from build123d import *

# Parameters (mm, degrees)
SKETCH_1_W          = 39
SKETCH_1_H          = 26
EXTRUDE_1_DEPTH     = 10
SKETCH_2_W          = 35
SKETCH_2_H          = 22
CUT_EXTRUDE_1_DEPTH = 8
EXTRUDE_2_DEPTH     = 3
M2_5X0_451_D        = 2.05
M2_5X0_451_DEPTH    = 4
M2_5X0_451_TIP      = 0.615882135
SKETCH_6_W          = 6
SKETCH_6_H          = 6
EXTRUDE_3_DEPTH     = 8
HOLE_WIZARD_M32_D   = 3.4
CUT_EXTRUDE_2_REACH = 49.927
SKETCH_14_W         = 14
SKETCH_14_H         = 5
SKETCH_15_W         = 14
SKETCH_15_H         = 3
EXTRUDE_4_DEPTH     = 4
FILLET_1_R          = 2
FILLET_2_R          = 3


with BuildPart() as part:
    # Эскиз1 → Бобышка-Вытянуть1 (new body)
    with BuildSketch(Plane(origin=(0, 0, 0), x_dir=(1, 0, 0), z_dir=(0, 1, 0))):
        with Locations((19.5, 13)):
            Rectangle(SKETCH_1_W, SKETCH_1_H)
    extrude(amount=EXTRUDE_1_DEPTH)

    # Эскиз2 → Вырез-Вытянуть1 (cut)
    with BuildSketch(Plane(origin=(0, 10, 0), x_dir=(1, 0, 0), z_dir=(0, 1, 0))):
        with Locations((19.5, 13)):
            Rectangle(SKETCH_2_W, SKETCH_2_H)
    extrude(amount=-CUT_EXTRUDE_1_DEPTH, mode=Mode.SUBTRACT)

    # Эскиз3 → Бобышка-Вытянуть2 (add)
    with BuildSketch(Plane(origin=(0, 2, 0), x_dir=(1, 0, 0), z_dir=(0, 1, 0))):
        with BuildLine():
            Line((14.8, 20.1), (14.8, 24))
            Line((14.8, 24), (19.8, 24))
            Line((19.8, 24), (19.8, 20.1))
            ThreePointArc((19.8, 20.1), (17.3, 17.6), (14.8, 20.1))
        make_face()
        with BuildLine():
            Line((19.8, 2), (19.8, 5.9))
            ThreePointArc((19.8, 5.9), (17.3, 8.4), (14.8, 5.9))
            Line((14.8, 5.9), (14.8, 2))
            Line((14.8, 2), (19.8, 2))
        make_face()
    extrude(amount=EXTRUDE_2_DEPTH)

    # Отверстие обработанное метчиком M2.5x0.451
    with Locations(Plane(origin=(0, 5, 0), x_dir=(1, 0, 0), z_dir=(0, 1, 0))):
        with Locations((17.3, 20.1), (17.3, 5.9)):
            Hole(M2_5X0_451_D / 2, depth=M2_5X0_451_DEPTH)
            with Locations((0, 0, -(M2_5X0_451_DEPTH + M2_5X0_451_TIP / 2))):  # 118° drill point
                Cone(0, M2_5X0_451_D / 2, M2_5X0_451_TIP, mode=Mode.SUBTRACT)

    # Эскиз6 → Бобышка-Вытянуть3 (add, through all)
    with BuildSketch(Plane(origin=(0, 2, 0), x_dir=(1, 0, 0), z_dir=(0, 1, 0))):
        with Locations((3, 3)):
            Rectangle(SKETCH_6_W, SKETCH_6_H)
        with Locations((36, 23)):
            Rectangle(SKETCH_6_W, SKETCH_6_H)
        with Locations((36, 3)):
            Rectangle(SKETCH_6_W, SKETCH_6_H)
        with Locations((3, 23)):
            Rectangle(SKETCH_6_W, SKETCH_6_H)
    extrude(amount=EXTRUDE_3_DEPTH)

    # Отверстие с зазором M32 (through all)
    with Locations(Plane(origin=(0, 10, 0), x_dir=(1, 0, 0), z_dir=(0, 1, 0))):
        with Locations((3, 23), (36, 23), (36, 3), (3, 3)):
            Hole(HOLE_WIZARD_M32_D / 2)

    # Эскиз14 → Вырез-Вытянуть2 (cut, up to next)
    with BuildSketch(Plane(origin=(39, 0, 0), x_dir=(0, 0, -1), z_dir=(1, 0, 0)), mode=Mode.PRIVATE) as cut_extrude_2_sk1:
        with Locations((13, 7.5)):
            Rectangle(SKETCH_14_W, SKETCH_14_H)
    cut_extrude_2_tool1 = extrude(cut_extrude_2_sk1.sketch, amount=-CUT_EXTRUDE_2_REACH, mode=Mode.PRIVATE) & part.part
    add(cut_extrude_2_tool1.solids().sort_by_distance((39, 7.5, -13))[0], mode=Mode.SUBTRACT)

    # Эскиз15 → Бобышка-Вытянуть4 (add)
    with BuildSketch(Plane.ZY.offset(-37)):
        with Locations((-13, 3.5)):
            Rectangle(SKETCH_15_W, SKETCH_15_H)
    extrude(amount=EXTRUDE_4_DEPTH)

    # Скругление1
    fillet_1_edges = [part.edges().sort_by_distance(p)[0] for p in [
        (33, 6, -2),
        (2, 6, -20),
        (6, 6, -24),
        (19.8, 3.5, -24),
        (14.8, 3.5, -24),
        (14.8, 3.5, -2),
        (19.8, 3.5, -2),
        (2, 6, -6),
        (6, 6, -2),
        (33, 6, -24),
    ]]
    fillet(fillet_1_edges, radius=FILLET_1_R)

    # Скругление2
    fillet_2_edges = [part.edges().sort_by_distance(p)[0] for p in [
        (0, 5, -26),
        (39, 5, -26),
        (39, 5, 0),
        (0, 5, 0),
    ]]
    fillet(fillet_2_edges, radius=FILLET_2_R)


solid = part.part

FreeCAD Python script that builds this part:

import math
import FreeCAD as App
import Part
import Sketcher
from FreeCAD import Vector
Q = App.Units.Quantity


def edges_at(feature, points):
    """Names of the edges that pass closest to the given points."""
    edges = feature.Shape.Edges
    near = lambda p: min(range(len(edges)), key=lambda i: edges[i].distToShape(Part.Vertex(*p))[0])
    return sorted({f"Edge{near(p) + 1}" for p in points})


def add_polygon(sketch, points):
    """Adds a closed chain of lines whose ends are joined by coincident constraints."""
    first, n = sketch.GeometryCount, len(points)
    for a, b in zip(points, points[1:] + points[:1]):
        sketch.addGeometry(Part.LineSegment(App.Vector(*a, 0), App.Vector(*b, 0)), False)
    for i in range(n):
        sketch.addConstraint(Sketcher.Constraint("Coincident", first + i, 2, first + (i + 1) % n, 1))

doc = App.newDocument("Part")
params = doc.addObject("Spreadsheet::Sheet", "Params")
for row, (alias, value) in enumerate([
    ("sketch1_width", "39 mm"),
    ("sketch1_height", "26 mm"),
    ("pad1_length", "10 mm"),
    ("sketch2_width", "35 mm"),
    ("sketch2_height", "22 mm"),
    ("pocket1_length", "8 mm"),
    ("sketch3_radius", "2.5 mm"),
    ("sketch3_height", "3.9 mm"),
    ("pad2_length", "3 mm"),
    ("sketch4_diameter", "2.05 mm"),
    ("hole_diameter", "2.05 mm"),
    ("hole_depth", "4 mm"),
    ("sketch5_width", "6 mm"),
    ("pad3_length", "8 mm"),
    ("sketch6_diameter", "3.4 mm"),
    ("hole2_diameter", "3.4 mm"),
    ("sketch7_width", "5 mm"),
    ("sketch7_height", "14 mm"),
    ("sketch8_width", "3 mm"),
    ("sketch8_height", "14 mm"),
    ("pad4_length", "4 mm"),
    ("fillet_radius", "2 mm"),
    ("fillet2_radius", "3 mm"),
], start=1):
    params.set(f"A{row}", alias)
    params.set(f"B{row}", "=" + value)
    params.setAlias(f"B{row}", alias)

body = doc.addObject("PartDesign::Body", "Body")

# Sketch on XZ plane
sketch1 = body.newObject("Sketcher::SketchObject", "Sketch")
sketch1.AttachmentSupport = (doc.getObject("XZ_Plane"), [""])
sketch1.MapMode = "FlatFace"
add_polygon(sketch1, [(0, -26), (0, 0), (39, 0), (39, -26)])  # lines 0-3
sketch1.addConstraint(Sketcher.Constraint("Vertical", 0))
sketch1.addConstraint(Sketcher.Constraint("Horizontal", 1))
sketch1.addConstraint(Sketcher.Constraint("Vertical", 2))
sketch1.addConstraint(Sketcher.Constraint("Horizontal", 3))
sketch1.addConstraint(Sketcher.Constraint("Coincident", 0, 2, -1, 1))
sketch1.addConstraint(Sketcher.Constraint("DistanceX", 1, 1, 1, 2, Q("39 mm")))
sketch1.addConstraint(Sketcher.Constraint("DistanceY", 0, 1, 0, 2, Q("26 mm")))
sketch1.setExpression("Constraints[9]", "Params.sketch1_width")
sketch1.setExpression("Constraints[10]", "Params.sketch1_height")
pad1 = body.newObject("PartDesign::Pad", "Pad")
pad1.Profile = sketch1
pad1.setExpression("Length", "Params.pad1_length")
pad1.Reversed = True

# Sketch on XZ plane
sketch2 = body.newObject("Sketcher::SketchObject", "Sketch001")
sketch2.AttachmentSupport = (doc.getObject("XZ_Plane"), [""])
sketch2.MapMode = "FlatFace"
sketch2.AttachmentOffset = App.Placement(Vector(0, 0, -10), App.Rotation())
add_polygon(sketch2, [(2, -24), (2, -2), (37, -2), (37, -24)])  # lines 0-3
sketch2.addConstraint(Sketcher.Constraint("Vertical", 0))
sketch2.addConstraint(Sketcher.Constraint("Horizontal", 1))
sketch2.addConstraint(Sketcher.Constraint("Vertical", 2))
sketch2.addConstraint(Sketcher.Constraint("Horizontal", 3))
sketch2.addConstraint(Sketcher.Constraint("DistanceX", 1, 1, 1, 2, Q("35 mm")))
sketch2.addConstraint(Sketcher.Constraint("DistanceY", 0, 1, 0, 2, Q("22 mm")))
sketch2.addConstraint(Sketcher.Constraint("DistanceX", -1, 1, 0, 2, Q("2 mm")))
sketch2.addConstraint(Sketcher.Constraint("DistanceY", 0, 2, -1, 1, Q("2 mm")))
sketch2.setExpression("Constraints[8]", "Params.sketch2_width")
sketch2.setExpression("Constraints[9]", "Params.sketch2_height")
pocket1 = body.newObject("PartDesign::Pocket", "Pocket")
pocket1.Profile = sketch2
pocket1.setExpression("Length", "Params.pocket1_length")
pocket1.Reversed = True

# Sketch on XZ plane
sketch3 = body.newObject("Sketcher::SketchObject", "Sketch002")
sketch3.AttachmentSupport = (doc.getObject("XZ_Plane"), [""])
sketch3.MapMode = "FlatFace"
sketch3.AttachmentOffset = App.Placement(Vector(0, 0, -2), App.Rotation())
sketch3.addGeometry(Part.LineSegment(Vector(14.8, -24, 0), Vector(14.8, -20.1, 0)), False)
sketch3.addGeometry(Part.ArcOfCircle(Part.Circle(Vector(17.3, -20.1, 0), Vector(0, 0, 1), 2.5), math.radians(0), math.radians(180)), False)
sketch3.addGeometry(Part.LineSegment(Vector(19.8, -20.1, 0), Vector(19.8, -24, 0)), False)
sketch3.addGeometry(Part.LineSegment(Vector(19.8, -24, 0), Vector(14.8, -24, 0)), False)
sketch3.addGeometry(Part.LineSegment(Vector(19.8, -2, 0), Vector(19.8, -5.9, 0)), False)
sketch3.addGeometry(Part.ArcOfCircle(Part.Circle(Vector(17.3, -5.9, 0), Vector(0, 0, 1), 2.5), math.radians(180), math.radians(360)), False)
sketch3.addGeometry(Part.LineSegment(Vector(14.8, -5.9, 0), Vector(14.8, -2, 0)), False)
sketch3.addGeometry(Part.LineSegment(Vector(14.8, -2, 0), Vector(19.8, -2, 0)), False)
sketch3.addConstraint(Sketcher.Constraint("Tangent", 0, 2, 1, 2))
sketch3.addConstraint(Sketcher.Constraint("Tangent", 1, 1, 2, 1))
sketch3.addConstraint(Sketcher.Constraint("Coincident", 2, 2, 3, 1))
sketch3.addConstraint(Sketcher.Constraint("Coincident", 3, 2, 0, 1))
sketch3.addConstraint(Sketcher.Constraint("Tangent", 4, 2, 5, 2))
sketch3.addConstraint(Sketcher.Constraint("Tangent", 5, 1, 6, 1))
sketch3.addConstraint(Sketcher.Constraint("Coincident", 6, 2, 7, 1))
sketch3.addConstraint(Sketcher.Constraint("Coincident", 7, 2, 4, 1))
sketch3.addConstraint(Sketcher.Constraint("Vertical", 0))
sketch3.addConstraint(Sketcher.Constraint("Vertical", 2))
sketch3.addConstraint(Sketcher.Constraint("Horizontal", 3))
sketch3.addConstraint(Sketcher.Constraint("Vertical", 4))
sketch3.addConstraint(Sketcher.Constraint("Vertical", 6))
sketch3.addConstraint(Sketcher.Constraint("Horizontal", 7))
sketch3.addConstraint(Sketcher.Constraint("Equal", 1, 5))
sketch3.addConstraint(Sketcher.Constraint("Vertical", 1, 3, 5, 3))
sketch3.addConstraint(Sketcher.Constraint("Equal", 2, 4))
sketch3.addConstraint(Sketcher.Constraint("Radius", 1, Q("2.5 mm")))
sketch3.addConstraint(Sketcher.Constraint("DistanceY", 0, 1, 0, 2, Q("3.9 mm")))
sketch3.addConstraint(Sketcher.Constraint("DistanceY", 2, 2, -1, 1, Q("24 mm")))
sketch3.addConstraint(Sketcher.Constraint("DistanceY", 6, 2, -1, 1, Q("2 mm")))
sketch3.addConstraint(Sketcher.Constraint("DistanceX", -1, 1, 1, 3, Q("17.3 mm")))
sketch3.setExpression("Constraints[17]", "Params.sketch3_radius")
sketch3.setExpression("Constraints[18]", "Params.sketch3_height")
pad2 = body.newObject("PartDesign::Pad", "Pad001")
pad2.Profile = sketch3
pad2.setExpression("Length", "Params.pad2_length")
pad2.Reversed = True

# Sketch on XZ plane
sketch4 = body.newObject("Sketcher::SketchObject", "Sketch003")
sketch4.AttachmentSupport = (doc.getObject("XZ_Plane"), [""])
sketch4.MapMode = "FlatFace"
sketch4.AttachmentOffset = App.Placement(Vector(0, 0, -5), App.Rotation())
sketch4.addGeometry(Part.Circle(Vector(17.3, -20.1, 0), Vector(0, 0, 1), 1), False)
sketch4.addGeometry(Part.Circle(Vector(17.3, -5.9, 0), Vector(0, 0, 1), 1), False)
sketch4.addConstraint(Sketcher.Constraint("Equal", 0, 1))
sketch4.addConstraint(Sketcher.Constraint("Vertical", 0, 3, 1, 3))
sketch4.addConstraint(Sketcher.Constraint("Diameter", 0, Q("2.05 mm")))
sketch4.addConstraint(Sketcher.Constraint("DistanceX", -1, 1, 0, 3, Q("17.3 mm")))
sketch4.addConstraint(Sketcher.Constraint("DistanceY", 0, 3, -1, 1, Q("20.1 mm")))
sketch4.addConstraint(Sketcher.Constraint("DistanceY", 1, 3, -1, 1, Q("5.9 mm")))
sketch4.setExpression("Constraints[2]", "Params.sketch4_diameter")
doc.recompute()
hole = body.newObject("PartDesign::Hole", "Hole")
hole.Profile = sketch4
hole.ThreadType = "None"
hole.setExpression("Diameter", "Params.hole_diameter")
hole.DepthType = "Dimension"
hole.setExpression("Depth", "Params.hole_depth")
hole.DrillPoint = "Angled"
hole.DrillPointAngle = 118
hole.Reversed = True

# Sketch on XZ plane
sketch5 = body.newObject("Sketcher::SketchObject", "Sketch004")
sketch5.AttachmentSupport = (doc.getObject("XZ_Plane"), [""])
sketch5.MapMode = "FlatFace"
sketch5.AttachmentOffset = App.Placement(Vector(0, 0, -2), App.Rotation())
add_polygon(sketch5, [(0, -6), (0, 0), (6, 0), (6, -6)])  # lines 0-3
add_polygon(sketch5, [(33, -26), (33, -20), (39, -20), (39, -26)])  # lines 4-7
add_polygon(sketch5, [(33, -6), (33, 0), (39, 0), (39, -6)])  # lines 8-11
add_polygon(sketch5, [(0, -26), (0, -20), (6, -20), (6, -26)])  # lines 12-15
sketch5.addConstraint(Sketcher.Constraint("Vertical", 0))
sketch5.addConstraint(Sketcher.Constraint("Horizontal", 1))
sketch5.addConstraint(Sketcher.Constraint("Vertical", 2))
sketch5.addConstraint(Sketcher.Constraint("Horizontal", 3))
sketch5.addConstraint(Sketcher.Constraint("Vertical", 4))
sketch5.addConstraint(Sketcher.Constraint("Horizontal", 5))
sketch5.addConstraint(Sketcher.Constraint("Vertical", 6))
sketch5.addConstraint(Sketcher.Constraint("Horizontal", 7))
sketch5.addConstraint(Sketcher.Constraint("Vertical", 8))
sketch5.addConstraint(Sketcher.Constraint("Horizontal", 9))
sketch5.addConstraint(Sketcher.Constraint("Vertical", 10))
sketch5.addConstraint(Sketcher.Constraint("Horizontal", 11))
sketch5.addConstraint(Sketcher.Constraint("Vertical", 12))
sketch5.addConstraint(Sketcher.Constraint("Horizontal", 13))
sketch5.addConstraint(Sketcher.Constraint("Vertical", 14))
sketch5.addConstraint(Sketcher.Constraint("Horizontal", 15))
sketch5.addConstraint(Sketcher.Constraint("Coincident", 0, 2, -1, 1))
sketch5.addConstraint(Sketcher.Constraint("PointOnObject", 8, 2, -1))
sketch5.addConstraint(Sketcher.Constraint("PointOnObject", 12, 2, -2))
sketch5.addConstraint(Sketcher.Constraint("Horizontal", 3, 2, 10, 2))
sketch5.addConstraint(Sketcher.Constraint("Horizontal", 5, 2, 12, 2))
sketch5.addConstraint(Sketcher.Constraint("Horizontal", 7, 2, 14, 2))
sketch5.addConstraint(Sketcher.Constraint("Vertical", 7, 2, 8, 2))
sketch5.addConstraint(Sketcher.Constraint("Vertical", 6, 2, 9, 2))
sketch5.addConstraint(Sketcher.Constraint("Vertical", 2, 2, 13, 2))
sketch5.addConstraint(Sketcher.Constraint("Equal", 3, 5))
sketch5.addConstraint(Sketcher.Constraint("Equal", 15, 0))
sketch5.addConstraint(Sketcher.Constraint("Equal", 2, 4))
sketch5.addConstraint(Sketcher.Constraint("DistanceX", 1, 1, 1, 2, Q("6 mm")))
sketch5.addConstraint(Sketcher.Constraint("DistanceX", -1, 1, 4, 2, Q("33 mm")))
sketch5.addConstraint(Sketcher.Constraint("DistanceY", 4, 2, -1, 1, Q("20 mm")))
sketch5.setExpression("Constraints[44]", "Params.sketch5_width")
pad3 = body.newObject("PartDesign::Pad", "Pad002")
pad3.Profile = sketch5
pad3.setExpression("Length", "Params.pad3_length")
pad3.Reversed = True

# Sketch on XZ plane
sketch6 = body.newObject("Sketcher::SketchObject", "Sketch005")
sketch6.AttachmentSupport = (doc.getObject("XZ_Plane"), [""])
sketch6.MapMode = "FlatFace"
sketch6.AttachmentOffset = App.Placement(Vector(0, 0, -10), App.Rotation())
sketch6.addGeometry(Part.Circle(Vector(3, -23, 0), Vector(0, 0, 1), 1.7), False)
sketch6.addGeometry(Part.Circle(Vector(36, -23, 0), Vector(0, 0, 1), 1.7), False)
sketch6.addGeometry(Part.Circle(Vector(36, -3, 0), Vector(0, 0, 1), 1.7), False)
sketch6.addGeometry(Part.Circle(Vector(3, -3, 0), Vector(0, 0, 1), 1.7), False)
sketch6.addConstraint(Sketcher.Constraint("Equal", 0, 1))
sketch6.addConstraint(Sketcher.Constraint("Equal", 1, 2))
sketch6.addConstraint(Sketcher.Constraint("Equal", 2, 3))
sketch6.addConstraint(Sketcher.Constraint("Horizontal", 0, 3, 1, 3))
sketch6.addConstraint(Sketcher.Constraint("Horizontal", 2, 3, 3, 3))
sketch6.addConstraint(Sketcher.Constraint("Vertical", 1, 3, 2, 3))
sketch6.addConstraint(Sketcher.Constraint("Vertical", 0, 3, 3, 3))
sketch6.addConstraint(Sketcher.Constraint("Diameter", 0, Q("3.4 mm")))
sketch6.addConstraint(Sketcher.Constraint("DistanceX", -1, 1, 0, 3, Q("3 mm")))
sketch6.addConstraint(Sketcher.Constraint("DistanceY", 0, 3, -1, 1, Q("23 mm")))
sketch6.addConstraint(Sketcher.Constraint("DistanceX", -1, 1, 1, 3, Q("36 mm")))
sketch6.addConstraint(Sketcher.Constraint("DistanceY", 2, 3, -1, 1, Q("3 mm")))
sketch6.setExpression("Constraints[7]", "Params.sketch6_diameter")
doc.recompute()
hole2 = body.newObject("PartDesign::Hole", "Hole001")
hole2.Profile = sketch6
hole2.ThreadType = "None"
hole2.setExpression("Diameter", "Params.hole2_diameter")
hole2.DepthType = "ThroughAll"
hole2.Reversed = True

# Sketch on YZ plane
sketch7 = body.newObject("Sketcher::SketchObject", "Sketch006")
sketch7.AttachmentSupport = (doc.getObject("YZ_Plane"), [""])
sketch7.MapMode = "FlatFace"
sketch7.AttachmentOffset = App.Placement(Vector(0, 0, 39), App.Rotation())
add_polygon(sketch7, [(10, -6), (5, -6), (5, -20), (10, -20)])  # lines 0-3
sketch7.addConstraint(Sketcher.Constraint("Horizontal", 0))
sketch7.addConstraint(Sketcher.Constraint("Vertical", 1))
sketch7.addConstraint(Sketcher.Constraint("Horizontal", 2))
sketch7.addConstraint(Sketcher.Constraint("Vertical", 3))
sketch7.addConstraint(Sketcher.Constraint("DistanceX", 0, 2, 0, 1, Q("5 mm")))
sketch7.addConstraint(Sketcher.Constraint("DistanceY", 1, 2, 1, 1, Q("14 mm")))
sketch7.addConstraint(Sketcher.Constraint("DistanceX", -1, 1, 0, 2, Q("5 mm")))
sketch7.addConstraint(Sketcher.Constraint("DistanceY", 0, 2, -1, 1, Q("6 mm")))
sketch7.setExpression("Constraints[8]", "Params.sketch7_width")
sketch7.setExpression("Constraints[9]", "Params.sketch7_height")
pocket2 = body.newObject("PartDesign::Pocket", "Pocket001")
pocket2.Profile = sketch7
pocket2.Type = "UpToFirst"

# Sketch on YZ plane
sketch8 = body.newObject("Sketcher::SketchObject", "Sketch007")
sketch8.AttachmentSupport = (doc.getObject("YZ_Plane"), [""])
sketch8.MapMode = "FlatFace"
sketch8.AttachmentOffset = App.Placement(Vector(0, 0, 37), App.Rotation())
add_polygon(sketch8, [(5, -20), (2, -20), (2, -6), (5, -6)])  # lines 0-3
sketch8.addConstraint(Sketcher.Constraint("Horizontal", 0))
sketch8.addConstraint(Sketcher.Constraint("Vertical", 1))
sketch8.addConstraint(Sketcher.Constraint("Horizontal", 2))
sketch8.addConstraint(Sketcher.Constraint("Vertical", 3))
sketch8.addConstraint(Sketcher.Constraint("DistanceX", 0, 2, 0, 1, Q("3 mm")))
sketch8.addConstraint(Sketcher.Constraint("DistanceY", 1, 1, 1, 2, Q("14 mm")))
sketch8.addConstraint(Sketcher.Constraint("DistanceX", -1, 1, 0, 2, Q("2 mm")))
sketch8.addConstraint(Sketcher.Constraint("DistanceY", 0, 2, -1, 1, Q("20 mm")))
sketch8.setExpression("Constraints[8]", "Params.sketch8_width")
sketch8.setExpression("Constraints[9]", "Params.sketch8_height")
pad4 = body.newObject("PartDesign::Pad", "Pad003")
pad4.Profile = sketch8
pad4.setExpression("Length", "Params.pad4_length")
pad4.Reversed = True
doc.recompute()

fillet = body.newObject("PartDesign::Fillet", "Fillet")
fillet.Base = (pad4, edges_at(pad4, [
    (33, 6, -2),
    (2, 6, -20),
    (6, 6, -24),
    (19.8, 3.5, -24),
    (14.8, 3.5, -24),
    (14.8, 3.5, -2),
    (19.8, 3.5, -2),
    (2, 6, -6),
    (6, 6, -2),
    (33, 6, -24),
]))
fillet.setExpression("Radius", "Params.fillet_radius")
doc.recompute()

fillet2 = body.newObject("PartDesign::Fillet", "Fillet001")
fillet2.Base = (fillet, edges_at(fillet, [
    (0, 5, -26),
    (39, 5, -26),
    (39, 5, 0),
    (0, 5, 0),
]))
fillet2.setExpression("Radius", "Params.fillet2_radius")

doc.recompute()
